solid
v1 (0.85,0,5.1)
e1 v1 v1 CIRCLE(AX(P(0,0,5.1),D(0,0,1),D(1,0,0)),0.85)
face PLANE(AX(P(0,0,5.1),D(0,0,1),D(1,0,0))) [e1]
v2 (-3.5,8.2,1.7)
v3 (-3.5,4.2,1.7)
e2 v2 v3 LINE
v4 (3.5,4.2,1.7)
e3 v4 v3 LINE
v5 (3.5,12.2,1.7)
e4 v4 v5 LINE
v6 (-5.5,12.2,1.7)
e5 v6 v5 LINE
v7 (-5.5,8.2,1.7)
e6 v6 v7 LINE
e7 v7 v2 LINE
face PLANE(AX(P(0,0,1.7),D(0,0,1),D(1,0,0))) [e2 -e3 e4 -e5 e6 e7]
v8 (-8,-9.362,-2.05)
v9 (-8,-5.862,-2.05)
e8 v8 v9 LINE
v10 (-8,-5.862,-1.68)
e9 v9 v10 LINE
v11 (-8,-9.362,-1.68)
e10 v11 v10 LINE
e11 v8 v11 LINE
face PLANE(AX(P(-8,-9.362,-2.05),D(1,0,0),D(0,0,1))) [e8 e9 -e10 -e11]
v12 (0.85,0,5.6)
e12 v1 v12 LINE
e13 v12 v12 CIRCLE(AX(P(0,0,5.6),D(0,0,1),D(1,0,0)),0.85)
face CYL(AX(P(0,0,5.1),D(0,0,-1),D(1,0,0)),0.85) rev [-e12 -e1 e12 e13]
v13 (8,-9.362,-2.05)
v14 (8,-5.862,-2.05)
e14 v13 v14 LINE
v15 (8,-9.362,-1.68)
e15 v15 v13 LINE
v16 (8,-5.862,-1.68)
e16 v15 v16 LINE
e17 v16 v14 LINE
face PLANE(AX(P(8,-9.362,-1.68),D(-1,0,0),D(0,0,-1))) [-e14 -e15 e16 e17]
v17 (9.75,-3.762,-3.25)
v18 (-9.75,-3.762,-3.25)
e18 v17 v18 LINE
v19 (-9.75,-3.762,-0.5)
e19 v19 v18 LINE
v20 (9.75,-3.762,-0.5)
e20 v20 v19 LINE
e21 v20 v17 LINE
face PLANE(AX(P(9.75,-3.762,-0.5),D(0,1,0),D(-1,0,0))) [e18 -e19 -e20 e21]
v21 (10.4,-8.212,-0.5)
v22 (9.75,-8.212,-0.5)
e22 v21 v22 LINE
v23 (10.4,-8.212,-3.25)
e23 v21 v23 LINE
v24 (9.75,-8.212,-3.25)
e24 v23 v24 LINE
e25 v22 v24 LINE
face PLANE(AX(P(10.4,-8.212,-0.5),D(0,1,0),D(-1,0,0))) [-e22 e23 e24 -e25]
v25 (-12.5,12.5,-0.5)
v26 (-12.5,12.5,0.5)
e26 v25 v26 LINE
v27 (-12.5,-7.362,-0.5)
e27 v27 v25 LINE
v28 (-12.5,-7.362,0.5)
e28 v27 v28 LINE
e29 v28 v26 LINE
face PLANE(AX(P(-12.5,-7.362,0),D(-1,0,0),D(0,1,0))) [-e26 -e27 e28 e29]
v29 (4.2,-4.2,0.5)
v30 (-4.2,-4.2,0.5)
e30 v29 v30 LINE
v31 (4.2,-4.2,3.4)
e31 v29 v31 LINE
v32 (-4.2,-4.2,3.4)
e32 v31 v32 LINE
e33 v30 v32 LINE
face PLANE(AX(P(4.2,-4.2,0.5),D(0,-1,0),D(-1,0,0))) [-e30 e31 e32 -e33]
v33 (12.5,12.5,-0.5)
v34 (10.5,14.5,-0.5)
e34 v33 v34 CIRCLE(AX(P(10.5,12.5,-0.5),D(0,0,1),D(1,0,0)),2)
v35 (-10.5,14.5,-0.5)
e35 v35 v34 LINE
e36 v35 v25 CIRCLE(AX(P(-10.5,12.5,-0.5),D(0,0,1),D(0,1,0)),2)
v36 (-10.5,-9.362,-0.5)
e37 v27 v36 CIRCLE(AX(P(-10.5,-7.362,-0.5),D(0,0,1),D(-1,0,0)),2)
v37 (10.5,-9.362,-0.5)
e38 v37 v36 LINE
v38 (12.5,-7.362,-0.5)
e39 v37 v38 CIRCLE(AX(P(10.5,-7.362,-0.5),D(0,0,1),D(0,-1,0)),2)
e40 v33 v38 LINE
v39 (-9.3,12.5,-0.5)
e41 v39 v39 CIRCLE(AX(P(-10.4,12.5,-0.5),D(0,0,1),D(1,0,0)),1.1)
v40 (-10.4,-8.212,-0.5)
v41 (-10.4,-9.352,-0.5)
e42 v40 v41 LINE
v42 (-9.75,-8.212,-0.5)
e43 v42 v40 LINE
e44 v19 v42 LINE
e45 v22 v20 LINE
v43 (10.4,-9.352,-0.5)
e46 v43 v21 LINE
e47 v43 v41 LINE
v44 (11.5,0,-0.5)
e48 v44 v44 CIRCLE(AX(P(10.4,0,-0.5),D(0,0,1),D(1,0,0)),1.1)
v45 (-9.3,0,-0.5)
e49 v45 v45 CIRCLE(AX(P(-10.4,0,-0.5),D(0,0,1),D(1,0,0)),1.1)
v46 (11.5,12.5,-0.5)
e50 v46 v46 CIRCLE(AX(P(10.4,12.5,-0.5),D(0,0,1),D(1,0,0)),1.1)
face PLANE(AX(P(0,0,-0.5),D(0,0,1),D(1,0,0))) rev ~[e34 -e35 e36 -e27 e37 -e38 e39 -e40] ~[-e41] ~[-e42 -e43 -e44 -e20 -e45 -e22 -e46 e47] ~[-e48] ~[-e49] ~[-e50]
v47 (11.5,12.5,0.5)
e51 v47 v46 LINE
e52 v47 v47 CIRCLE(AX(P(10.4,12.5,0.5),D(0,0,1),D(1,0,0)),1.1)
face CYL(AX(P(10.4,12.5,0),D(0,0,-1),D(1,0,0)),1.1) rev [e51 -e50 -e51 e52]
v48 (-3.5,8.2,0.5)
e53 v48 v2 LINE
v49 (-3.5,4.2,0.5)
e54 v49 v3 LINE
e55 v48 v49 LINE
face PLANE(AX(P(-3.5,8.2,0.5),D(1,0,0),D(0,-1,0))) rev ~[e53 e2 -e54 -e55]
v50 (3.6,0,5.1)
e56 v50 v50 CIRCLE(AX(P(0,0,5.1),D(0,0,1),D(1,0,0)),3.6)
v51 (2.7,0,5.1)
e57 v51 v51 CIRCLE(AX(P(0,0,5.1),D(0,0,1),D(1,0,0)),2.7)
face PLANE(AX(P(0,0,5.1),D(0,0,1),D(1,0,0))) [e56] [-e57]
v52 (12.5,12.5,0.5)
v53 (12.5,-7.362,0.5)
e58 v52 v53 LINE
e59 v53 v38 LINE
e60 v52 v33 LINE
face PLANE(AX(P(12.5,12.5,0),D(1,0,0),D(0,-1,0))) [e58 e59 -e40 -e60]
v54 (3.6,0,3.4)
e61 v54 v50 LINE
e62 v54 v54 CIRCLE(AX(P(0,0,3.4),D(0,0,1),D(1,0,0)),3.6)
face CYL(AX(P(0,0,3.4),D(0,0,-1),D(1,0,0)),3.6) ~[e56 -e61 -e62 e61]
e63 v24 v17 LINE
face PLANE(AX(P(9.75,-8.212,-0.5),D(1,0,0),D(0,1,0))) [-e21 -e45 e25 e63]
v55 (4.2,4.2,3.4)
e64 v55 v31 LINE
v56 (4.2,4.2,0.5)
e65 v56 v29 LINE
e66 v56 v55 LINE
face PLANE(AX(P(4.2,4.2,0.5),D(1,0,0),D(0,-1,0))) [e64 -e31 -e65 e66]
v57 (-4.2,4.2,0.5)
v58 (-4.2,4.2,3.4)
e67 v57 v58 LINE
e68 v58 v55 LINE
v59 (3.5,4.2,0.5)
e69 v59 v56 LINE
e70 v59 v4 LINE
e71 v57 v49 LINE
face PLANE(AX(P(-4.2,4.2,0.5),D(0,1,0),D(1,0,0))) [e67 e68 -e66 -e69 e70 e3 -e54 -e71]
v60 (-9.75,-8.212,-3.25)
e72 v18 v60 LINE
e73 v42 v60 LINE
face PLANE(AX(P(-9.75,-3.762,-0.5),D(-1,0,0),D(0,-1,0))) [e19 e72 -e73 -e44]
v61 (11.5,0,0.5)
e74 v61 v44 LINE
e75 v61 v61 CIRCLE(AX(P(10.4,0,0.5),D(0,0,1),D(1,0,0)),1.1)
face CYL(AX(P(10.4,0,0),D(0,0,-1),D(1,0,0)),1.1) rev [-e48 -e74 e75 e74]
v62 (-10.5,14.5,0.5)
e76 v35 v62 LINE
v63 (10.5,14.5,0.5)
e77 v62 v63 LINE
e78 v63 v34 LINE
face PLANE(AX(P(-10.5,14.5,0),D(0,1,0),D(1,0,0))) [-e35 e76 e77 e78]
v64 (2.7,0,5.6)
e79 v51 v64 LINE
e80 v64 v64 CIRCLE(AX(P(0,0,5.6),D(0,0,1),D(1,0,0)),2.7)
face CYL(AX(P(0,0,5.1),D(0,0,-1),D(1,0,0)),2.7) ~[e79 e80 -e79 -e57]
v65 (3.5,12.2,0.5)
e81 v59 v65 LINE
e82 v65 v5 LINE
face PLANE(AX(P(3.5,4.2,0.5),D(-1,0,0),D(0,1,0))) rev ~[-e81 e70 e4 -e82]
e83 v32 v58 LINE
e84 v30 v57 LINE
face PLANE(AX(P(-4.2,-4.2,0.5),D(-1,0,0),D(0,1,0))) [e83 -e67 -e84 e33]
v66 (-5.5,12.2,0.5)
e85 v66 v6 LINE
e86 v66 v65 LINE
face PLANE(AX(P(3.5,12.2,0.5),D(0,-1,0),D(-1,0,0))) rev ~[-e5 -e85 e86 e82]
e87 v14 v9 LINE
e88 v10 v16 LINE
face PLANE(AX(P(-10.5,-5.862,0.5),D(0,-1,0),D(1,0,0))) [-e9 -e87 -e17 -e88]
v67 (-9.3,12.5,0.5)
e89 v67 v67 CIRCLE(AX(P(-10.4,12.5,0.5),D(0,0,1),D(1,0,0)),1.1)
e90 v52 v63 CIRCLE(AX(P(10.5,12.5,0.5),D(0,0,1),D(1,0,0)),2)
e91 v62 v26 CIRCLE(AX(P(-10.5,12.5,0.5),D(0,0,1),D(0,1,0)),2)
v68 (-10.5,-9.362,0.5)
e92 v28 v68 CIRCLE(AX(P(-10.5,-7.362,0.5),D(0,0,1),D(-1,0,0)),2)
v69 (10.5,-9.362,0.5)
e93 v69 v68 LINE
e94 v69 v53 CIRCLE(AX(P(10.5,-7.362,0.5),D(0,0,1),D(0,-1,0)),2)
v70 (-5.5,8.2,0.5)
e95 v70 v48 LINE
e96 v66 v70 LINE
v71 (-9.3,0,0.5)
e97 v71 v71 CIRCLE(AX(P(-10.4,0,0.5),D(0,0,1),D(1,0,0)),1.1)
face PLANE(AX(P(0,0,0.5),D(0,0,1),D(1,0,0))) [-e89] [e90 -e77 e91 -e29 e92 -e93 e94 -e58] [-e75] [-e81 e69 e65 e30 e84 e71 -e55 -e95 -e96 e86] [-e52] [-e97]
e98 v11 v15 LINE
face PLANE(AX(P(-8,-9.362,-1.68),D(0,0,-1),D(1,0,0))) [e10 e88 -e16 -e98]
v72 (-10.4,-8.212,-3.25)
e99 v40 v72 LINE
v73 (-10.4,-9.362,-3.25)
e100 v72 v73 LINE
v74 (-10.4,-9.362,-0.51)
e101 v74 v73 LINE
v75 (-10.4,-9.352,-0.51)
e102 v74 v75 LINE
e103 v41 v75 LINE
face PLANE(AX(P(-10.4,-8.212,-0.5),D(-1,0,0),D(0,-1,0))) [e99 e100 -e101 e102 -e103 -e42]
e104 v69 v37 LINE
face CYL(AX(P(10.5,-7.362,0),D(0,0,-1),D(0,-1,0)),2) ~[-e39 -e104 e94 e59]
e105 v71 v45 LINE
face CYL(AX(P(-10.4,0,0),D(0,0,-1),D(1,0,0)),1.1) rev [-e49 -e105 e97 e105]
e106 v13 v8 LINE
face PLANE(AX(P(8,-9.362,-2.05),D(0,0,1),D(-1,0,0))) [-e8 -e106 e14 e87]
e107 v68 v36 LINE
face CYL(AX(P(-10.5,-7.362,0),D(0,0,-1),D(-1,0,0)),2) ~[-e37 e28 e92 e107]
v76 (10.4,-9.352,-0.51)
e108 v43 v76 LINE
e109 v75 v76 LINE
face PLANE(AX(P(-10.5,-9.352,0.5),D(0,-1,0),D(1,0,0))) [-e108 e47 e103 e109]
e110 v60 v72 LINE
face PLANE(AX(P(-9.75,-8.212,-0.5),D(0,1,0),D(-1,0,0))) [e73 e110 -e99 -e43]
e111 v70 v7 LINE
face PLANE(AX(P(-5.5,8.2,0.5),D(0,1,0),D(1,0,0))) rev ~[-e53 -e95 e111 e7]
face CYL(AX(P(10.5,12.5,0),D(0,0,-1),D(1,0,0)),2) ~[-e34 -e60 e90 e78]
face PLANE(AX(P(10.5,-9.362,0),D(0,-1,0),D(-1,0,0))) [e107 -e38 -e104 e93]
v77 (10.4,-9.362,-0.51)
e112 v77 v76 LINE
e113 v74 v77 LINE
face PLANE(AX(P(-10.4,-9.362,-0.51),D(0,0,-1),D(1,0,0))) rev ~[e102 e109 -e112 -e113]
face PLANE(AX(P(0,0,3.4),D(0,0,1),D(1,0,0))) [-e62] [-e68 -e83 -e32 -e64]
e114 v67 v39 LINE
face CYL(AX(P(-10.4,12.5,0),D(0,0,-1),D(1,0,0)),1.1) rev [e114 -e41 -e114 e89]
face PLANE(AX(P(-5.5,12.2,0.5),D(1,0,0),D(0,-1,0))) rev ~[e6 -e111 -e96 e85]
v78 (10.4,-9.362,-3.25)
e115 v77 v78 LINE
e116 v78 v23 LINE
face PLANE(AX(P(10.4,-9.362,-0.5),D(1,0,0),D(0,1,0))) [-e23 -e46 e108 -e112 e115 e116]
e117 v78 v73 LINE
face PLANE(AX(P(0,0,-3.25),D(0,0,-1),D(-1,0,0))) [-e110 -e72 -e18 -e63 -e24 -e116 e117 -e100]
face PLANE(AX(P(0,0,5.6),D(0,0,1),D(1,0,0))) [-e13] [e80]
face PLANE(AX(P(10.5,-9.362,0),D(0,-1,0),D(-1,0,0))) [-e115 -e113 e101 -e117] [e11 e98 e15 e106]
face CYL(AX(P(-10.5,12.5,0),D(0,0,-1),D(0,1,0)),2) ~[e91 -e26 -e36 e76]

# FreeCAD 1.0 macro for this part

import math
import FreeCAD as App
import Part
import Sketcher
from FreeCAD import Vector
Q = App.Units.Quantity

doc = App.newDocument("Part")
body = doc.addObject("PartDesign::Body", "Body")

sketch1 = body.newObject("Sketcher::SketchObject", "Sketch")
sketch1.AttachmentSupport = (doc.getObject("XY_Plane"), [""])
sketch1.MapMode = "FlatFace"
sketch1.addGeometry(Part.LineSegment(Vector(10.5, 14.5, 0), Vector(-10.5, 14.5, 0)), False)
sketch1.addGeometry(Part.ArcOfCircle(Part.Circle(Vector(-10.5, 12.5, 0), Vector(0, 0, 1), 2), math.radians(90), math.radians(180)), False)
sketch1.addGeometry(Part.LineSegment(Vector(-12.5, 12.5, 0), Vector(-12.5, -7.4, 0)), False)
sketch1.addGeometry(Part.ArcOfCircle(Part.Circle(Vector(-10.5, -7.4, 0), Vector(0, 0, 1), 2), math.radians(180), math.radians(270)), False)
sketch1.addGeometry(Part.LineSegment(Vector(-10.5, -9.4, 0), Vector(10.5, -9.4, 0)), False)
sketch1.addGeometry(Part.ArcOfCircle(Part.Circle(Vector(10.5, -7.4, 0), Vector(0, 0, 1), 2), math.radians(-90), math.radians(0)), False)
sketch1.addGeometry(Part.LineSegment(Vector(12.5, -7.4, 0), Vector(12.5, 12.5, 0)), False)
sketch1.addGeometry(Part.ArcOfCircle(Part.Circle(Vector(10.5, 12.5, 0), Vector(0, 0, 1), 2), math.radians(0), math.radians(90)), False)
sketch1.addGeometry(Part.Circle(Vector(-10.4, 0, 0), Vector(0, 0, 1), 1.1), False)
sketch1.addGeometry(Part.Circle(Vector(10.4, 0, 0), Vector(0, 0, 1), 1.1), False)
sketch1.addGeometry(Part.Circle(Vector(-10.4, 12.5, 0), Vector(0, 0, 1), 1.1), False)
sketch1.addGeometry(Part.Circle(Vector(10.4, 12.5, 0), Vector(0, 0, 1), 1.1), False)
sketch1.addConstraint(Sketcher.Constraint("Tangent", 0, 2, 1, 1))
sketch1.addConstraint(Sketcher.Constraint("Tangent", 1, 2, 2, 1))
sketch1.addConstraint(Sketcher.Constraint("Tangent", 2, 2, 3, 1))
sketch1.addConstraint(Sketcher.Constraint("Tangent", 3, 2, 4, 1))
sketch1.addConstraint(Sketcher.Constraint("Tangent", 4, 2, 5, 1))
sketch1.addConstraint(Sketcher.Constraint("Tangent", 5, 2, 6, 1))
sketch1.addConstraint(Sketcher.Constraint("Tangent", 6, 2, 7, 1))
sketch1.addConstraint(Sketcher.Constraint("Tangent", 7, 2, 0, 1))
sketch1.addConstraint(Sketcher.Constraint("Horizontal", 0))
sketch1.addConstraint(Sketcher.Constraint("Vertical", 2))
sketch1.addConstraint(Sketcher.Constraint("Horizontal", 4))
sketch1.addConstraint(Sketcher.Constraint("Vertical", 6))
sketch1.addConstraint(Sketcher.Constraint("Equal", 1, 3))
sketch1.addConstraint(Sketcher.Constraint("Equal", 3, 5))
sketch1.addConstraint(Sketcher.Constraint("Equal", 5, 7))
sketch1.addConstraint(Sketcher.Constraint("Equal", 8, 9))
sketch1.addConstraint(Sketcher.Constraint("Equal", 9, 10))
sketch1.addConstraint(Sketcher.Constraint("Equal", 10, 11))
sketch1.addConstraint(Sketcher.Constraint("Symmetric", 8, 3, 9, 3, -1, 1))
sketch1.addConstraint(Sketcher.Constraint("Symmetric", 10, 3, 11, 3, -2))
sketch1.addConstraint(Sketcher.Constraint("PointOnObject", 8, 3, -1))
sketch1.addConstraint(Sketcher.Constraint("Horizontal", 7, 3, 10, 3))
sketch1.addConstraint(Sketcher.Constraint("Vertical", 8, 3, 10, 3))
sketch1.addConstraint(Sketcher.Constraint("Radius", 1, Q("2 mm")))
sketch1.addConstraint(Sketcher.Constraint("Diameter", 8, Q("2.2 mm")))
sketch1.addConstraint(Sketcher.Constraint("DistanceY", -1, 1, 1, 3, Q("12.5 mm")))
sketch1.addConstraint(Sketcher.Constraint("DistanceX", 1, 2, -1, 1, Q("12.5 mm")))
sketch1.addConstraint(Sketcher.Constraint("DistanceX", -1, 1, 5, 2, Q("12.5 mm")))
sketch1.addConstraint(Sketcher.Constraint("DistanceX", 8, 3, 9, 3, Q("20.8 mm")))
sketch1.addConstraint(Sketcher.Constraint("DistanceY", 2, 2, 2, 1, Q("19.862 mm")))
pad1 = body.newObject("PartDesign::Pad", "Pad")
pad1.Profile = sketch1
pad1.Length = 1
pad1.Midplane = True

sketch2 = body.newObject("Sketcher::SketchObject", "Sketch001")
sketch2.AttachmentSupport = (doc.getObject("XY_Plane"), [""])
sketch2.MapMode = "FlatFace"
sketch2.AttachmentOffset = App.Placement(Vector(0, 0, 0.5), App.Rotation())
sketch2.addGeometry(Part.LineSegment(Vector(4, 4, 0), Vector(-4, 4, 0)), False)
sketch2.addGeometry(Part.LineSegment(Vector(-4, 4, 0), Vector(-4, -4, 0)), False)
sketch2.addGeometry(Part.LineSegment(Vector(-4, -4, 0), Vector(4, -4, 0)), False)
sketch2.addGeometry(Part.LineSegment(Vector(4, -4, 0), Vector(4, 4, 0)), False)
sketch2.addConstraint(Sketcher.Constraint("Coincident", 0, 2, 1, 1))
sketch2.addConstraint(Sketcher.Constraint("Coincident", 1, 2, 2, 1))
sketch2.addConstraint(Sketcher.Constraint("Coincident", 2, 2, 3, 1))
sketch2.addConstraint(Sketcher.Constraint("Coincident", 3, 2, 0, 1))
sketch2.addConstraint(Sketcher.Constraint("Horizontal", 0))
sketch2.addConstraint(Sketcher.Constraint("Vertical", 1))
sketch2.addConstraint(Sketcher.Constraint("Horizontal", 2))
sketch2.addConstraint(Sketcher.Constraint("Vertical", 3))
sketch2.addConstraint(Sketcher.Constraint("Symmetric", 0, 2, 2, 2, -1, 1))
sketch2.addConstraint(Sketcher.Constraint("Equal", 2, 1))
sketch2.addConstraint(Sketcher.Constraint("DistanceX", 0, 2, 0, 1, Q("8.4 mm")))
pad2 = body.newObject("PartDesign::Pad", "Pad001")
pad2.Profile = sketch2
pad2.Length = 2.9

sketch3 = body.newObject("Sketcher::SketchObject", "Sketch002")
sketch3.AttachmentSupport = (doc.getObject("XY_Plane"), [""])
sketch3.MapMode = "FlatFace"
sketch3.AttachmentOffset = App.Placement(Vector(0, 0, 3.4), App.Rotation())
sketch3.addGeometry(Part.Circle(Vector(0, 0, 0), Vector(0, 0, 1), 3.6), False)
sketch3.addConstraint(Sketcher.Constraint("Coincident", 0, 3, -1, 1))
sketch3.addConstraint(Sketcher.Constraint("Diameter", 0, Q("7.2 mm")))
pad3 = body.newObject("PartDesign::Pad", "Pad002")
pad3.Profile = sketch3
pad3.Length = 1.7

sketch4 = body.newObject("Sketcher::SketchObject", "Sketch003")
sketch4.AttachmentSupport = (doc.getObject("XY_Plane"), [""])
sketch4.MapMode = "FlatFace"
sketch4.AttachmentOffset = App.Placement(Vector(0, 0, 5.1), App.Rotation())
sketch4.addGeometry(Part.Circle(Vector(0, 0, 0), Vector(0, 0, 1), 2.7), False)
sketch4.addGeometry(Part.Circle(Vector(0, 0, 0), Vector(0, 0, 1), 0.8), False)
sketch4.addConstraint(Sketcher.Constraint("Coincident", 0, 3, -1, 1))
sketch4.addConstraint(Sketcher.Constraint("Coincident", 1, 3, -1, 1))
sketch4.addConstraint(Sketcher.Constraint("Diameter", 0, Q("5.4 mm")))
sketch4.addConstraint(Sketcher.Constraint("Diameter", 1, Q("1.7 mm")))
pad4 = body.newObject("PartDesign::Pad", "Pad003")
pad4.Profile = sketch4
pad4.Length = 0.5

sketch5 = body.newObject("Sketcher::SketchObject", "Sketch004")
sketch5.AttachmentSupport = (doc.getObject("XY_Plane"), [""])
sketch5.MapMode = "FlatFace"
sketch5.AttachmentOffset = App.Placement(Vector(0, 0, 0.5), App.Rotation())
sketch5.addGeometry(Part.LineSegment(Vector(-3.5, 4.2, 0), Vector(3.5, 4.2, 0)), False)
sketch5.addGeometry(Part.LineSegment(Vector(3.5, 4.2, 0), Vector(3.5, 12.2, 0)), False)
sketch5.addGeometry(Part.LineSegment(Vector(3.5, 12.2, 0), Vector(-5.5, 12.2, 0)), False)
sketch5.addGeometry(Part.LineSegment(Vector(-5.5, 12.2, 0), Vector(-5.5, 8.2, 0)), False)
sketch5.addGeometry(Part.LineSegment(Vector(-5.5, 8.2, 0), Vector(-3.5, 8.2, 0)), False)
sketch5.addGeometry(Part.LineSegment(Vector(-3.5, 8.2, 0), Vector(-3.5, 4.2, 0)), False)
sketch5.addConstraint(Sketcher.Constraint("Coincident", 0, 2, 1, 1))
sketch5.addConstraint(Sketcher.Constraint("Coincident", 1, 2, 2, 1))
sketch5.addConstraint(Sketcher.Constraint("Coincident", 2, 2, 3, 1))
sketch5.addConstraint(Sketcher.Constraint("Coincident", 3, 2, 4, 1))
sketch5.addConstraint(Sketcher.Constraint("Coincident", 4, 2, 5, 1))
sketch5.addConstraint(Sketcher.Constraint("Coincident", 5, 2, 0, 1))
sketch5.addConstraint(Sketcher.Constraint("Horizontal", 0))
sketch5.addConstraint(Sketcher.Constraint("Vertical", 1))
sketch5.addConstraint(Sketcher.Constraint("Horizontal", 2))
sketch5.addConstraint(Sketcher.Constraint("Vertical", 3))
sketch5.addConstraint(Sketcher.Constraint("Horizontal", 4))
sketch5.addConstraint(Sketcher.Constraint("Vertical", 5))
sketch5.addConstraint(Sketcher.Constraint("Equal", 3, 5))
sketch5.addConstraint(Sketcher.Constraint("DistanceX", 0, 1, 0, 2, Q("7 mm")))
sketch5.addConstraint(Sketcher.Constraint("DistanceX", 2, 2, 2, 1, Q("9 mm")))
sketch5.addConstraint(Sketcher.Constraint("DistanceY", 1, 1, 1, 2, Q("8 mm")))
sketch5.addConstraint(Sketcher.Constraint("DistanceX", -1, 1, 0, 2, Q("3.5 mm")))
sketch5.addConstraint(Sketcher.Constraint("DistanceY", -1, 1, 0, 2, Q("4.2 mm")))
pad5 = body.newObject("PartDesign::Pad", "Pad004")
pad5.Profile = sketch5
pad5.Length = 1.2

sketch6 = body.newObject("Sketcher::SketchObject", "Sketch005")
sketch6.AttachmentSupport = (doc.getObject("XY_Plane"), [""])
sketch6.MapMode = "FlatFace"
sketch6.AttachmentOffset = App.Placement(Vector(0, 0, -0.5), App.Rotation())
sketch6.addGeometry(Part.LineSegment(Vector(10.4, -8.2, 0), Vector(10.4, -9.4, 0)), False)
sketch6.addGeometry(Part.LineSegment(Vector(10.4, -9.4, 0), Vector(-10.4, -9.4, 0)), False)
sketch6.addGeometry(Part.LineSegment(Vector(-10.4, -9.4, 0), Vector(-10.4, -8.2, 0)), False)
sketch6.addGeometry(Part.LineSegment(Vector(-10.4, -8.2, 0), Vector(-9.8, -8.2, 0)), False)
sketch6.addGeometry(Part.LineSegment(Vector(-9.8, -8.2, 0), Vector(-9.8, -3.8, 0)), False)
sketch6.addGeometry(Part.LineSegment(Vector(-9.8, -3.8, 0), Vector(9.8, -3.8, 0)), False)
sketch6.addGeometry(Part.LineSegment(Vector(9.8, -3.8, 0), Vector(9.8, -8.2, 0)), False)
sketch6.addGeometry(Part.LineSegment(Vector(9.8, -8.2, 0), Vector(10.4, -8.2, 0)), False)
sketch6.addConstraint(Sketcher.Constraint("Coincident", 0, 2, 1, 1))
sketch6.addConstraint(Sketcher.Constraint("Coincident", 1, 2, 2, 1))
sketch6.addConstraint(Sketcher.Constraint("Coincident", 2, 2, 3, 1))
sketch6.addConstraint(Sketcher.Constraint("Coincident", 3, 2, 4, 1))
sketch6.addConstraint(Sketcher.Constraint("Coincident", 4, 2, 5, 1))
sketch6.addConstraint(Sketcher.Constraint("Coincident", 5, 2, 6, 1))
sketch6.addConstraint(Sketcher.Constraint("Coincident", 6, 2, 7, 1))
sketch6.addConstraint(Sketcher.Constraint("Coincident", 7, 2, 0, 1))
sketch6.addConstraint(Sketcher.Constraint("Vertical", 0))
sketch6.addConstraint(Sketcher.Constraint("Horizontal", 1))
sketch6.addConstraint(Sketcher.Constraint("Vertical", 2))
sketch6.addConstraint(Sketcher.Constraint("Horizontal", 3))
sketch6.addConstraint(Sketcher.Constraint("Vertical", 4))
sketch6.addConstraint(Sketcher.Constraint("Horizontal", 5))
sketch6.addConstraint(Sketcher.Constraint("Vertical", 6))
sketch6.addConstraint(Sketcher.Constraint("Horizontal", 7))
sketch6.addConstraint(Sketcher.Constraint("Symmetric", 3, 2, 6, 2, -2))
sketch6.addConstraint(Sketcher.Constraint("Equal", 3, 7))
sketch6.addConstraint(Sketcher.Constraint("DistanceX", 1, 2, 1, 1, Q("20.8 mm")))
sketch6.addConstraint(Sketcher.Constraint("DistanceX", 5, 1, 5, 2, Q("19.5 mm")))
sketch6.addConstraint(Sketcher.Constraint("DistanceY", 0, 2, 0, 1, Q("1.15 mm")))
sketch6.addConstraint(Sketcher.Constraint("DistanceY", 1, 2, 4, 2, Q("5.6 mm")))
sketch6.addConstraint(Sketcher.Constraint("DistanceY", 0, 2, -1, 1, Q("9.362 mm")))
pad6 = body.newObject("PartDesign::Pad", "Pad005")
pad6.Profile = sketch6
pad6.Length = 2.75
pad6.Reversed = True

sketch7 = body.newObject("Sketcher::SketchObject", "Sketch006")
sketch7.AttachmentSupport = (doc.getObject("XZ_Plane"), [""])
sketch7.MapMode = "FlatFace"
sketch7.AttachmentOffset = App.Placement(Vector(0, 0, 9.362), App.Rotation())
sketch7.addGeometry(Part.LineSegment(Vector(8, -1.68, 0), Vector(-8, -1.68, 0)), False)
sketch7.addGeometry(Part.LineSegment(Vector(-8, -1.68, 0), Vector(-8, -2.05, 0)), False)
sketch7.addGeometry(Part.LineSegment(Vector(-8, -2.05, 0), Vector(8, -2.05, 0)), False)
sketch7.addGeometry(Part.LineSegment(Vector(8, -2.05, 0), Vector(8, -1.68, 0)), False)
sketch7.addConstraint(Sketcher.Constraint("Coincident", 0, 2, 1, 1))
sketch7.addConstraint(Sketcher.Constraint("Coincident", 1, 2, 2, 1))
sketch7.addConstraint(Sketcher.Constraint("Coincident", 2, 2, 3, 1))
sketch7.addConstraint(Sketcher.Constraint("Coincident", 3, 2, 0, 1))
sketch7.addConstraint(Sketcher.Constraint("Horizontal", 0))
sketch7.addConstraint(Sketcher.Constraint("Vertical", 1))
sketch7.addConstraint(Sketcher.Constraint("Horizontal", 2))
sketch7.addConstraint(Sketcher.Constraint("Vertical", 3))
sketch7.addConstraint(Sketcher.Constraint("DistanceX", 0, 2, 0, 1, Q("16 mm")))
sketch7.addConstraint(Sketcher.Constraint("DistanceY", 1, 2, 1, 1, Q("0.37 mm")))
sketch7.addConstraint(Sketcher.Constraint("DistanceX", 0, 2, -1, 1, Q("8 mm")))
sketch7.addConstraint(Sketcher.Constraint("DistanceY", 0, 2, -1, 1, Q("1.68 mm")))
pocket1 = body.newObject("PartDesign::Pocket", "Pocket")
pocket1.Profile = sketch7
pocket1.Length = 3.5

sketch8 = body.newObject("Sketcher::SketchObject", "Sketch007")
sketch8.AttachmentSupport = (doc.getObject("XZ_Plane"), [""])
sketch8.MapMode = "FlatFace"
sketch8.AttachmentOffset = App.Placement(Vector(0, 0, 9.362), App.Rotation())
sketch8.addGeometry(Part.LineSegment(Vector(10.4, -0.51, 0), Vector(10.4, -0.5, 0)), False)
sketch8.addGeometry(Part.LineSegment(Vector(10.4, -0.5, 0), Vector(-10.4, -0.5, 0)), False)
sketch8.addGeometry(Part.LineSegment(Vector(-10.4, -0.5, 0), Vector(-10.4, -0.51, 0)), False)
sketch8.addGeometry(Part.LineSegment(Vector(-10.4, -0.51, 0), Vector(10.4, -0.51, 0)), False)
sketch8.addConstraint(Sketcher.Constraint("Coincident", 0, 2, 1, 1))
sketch8.addConstraint(Sketcher.Constraint("Coincident", 1, 2, 2, 1))
sketch8.addConstraint(Sketcher.Constraint("Coincident", 2, 2, 3, 1))
sketch8.addConstraint(Sketcher.Constraint("Coincident", 3, 2, 0, 1))
sketch8.addConstraint(Sketcher.Constraint("Vertical", 0))
sketch8.addConstraint(Sketcher.Constraint("Horizontal", 1))
sketch8.addConstraint(Sketcher.Constraint("Vertical", 2))
sketch8.addConstraint(Sketcher.Constraint("Horizontal", 3))
sketch8.addConstraint(Sketcher.Constraint("DistanceY", 0, 1, 0, 2, Q("0.01 mm")))
sketch8.addConstraint(Sketcher.Constraint("DistanceX", 1, 2, 1, 1, Q("20.8 mm")))
sketch8.addConstraint(Sketcher.Constraint("DistanceX", -1, 1, 0, 2, Q("10.4 mm")))
sketch8.addConstraint(Sketcher.Constraint("DistanceY", 0, 2, -1, 1, Q("0.5 mm")))
pocket2 = body.newObject("PartDesign::Pocket", "Pocket001")
pocket2.Profile = sketch8
pocket2.Length = 0.01

doc.recompute()
